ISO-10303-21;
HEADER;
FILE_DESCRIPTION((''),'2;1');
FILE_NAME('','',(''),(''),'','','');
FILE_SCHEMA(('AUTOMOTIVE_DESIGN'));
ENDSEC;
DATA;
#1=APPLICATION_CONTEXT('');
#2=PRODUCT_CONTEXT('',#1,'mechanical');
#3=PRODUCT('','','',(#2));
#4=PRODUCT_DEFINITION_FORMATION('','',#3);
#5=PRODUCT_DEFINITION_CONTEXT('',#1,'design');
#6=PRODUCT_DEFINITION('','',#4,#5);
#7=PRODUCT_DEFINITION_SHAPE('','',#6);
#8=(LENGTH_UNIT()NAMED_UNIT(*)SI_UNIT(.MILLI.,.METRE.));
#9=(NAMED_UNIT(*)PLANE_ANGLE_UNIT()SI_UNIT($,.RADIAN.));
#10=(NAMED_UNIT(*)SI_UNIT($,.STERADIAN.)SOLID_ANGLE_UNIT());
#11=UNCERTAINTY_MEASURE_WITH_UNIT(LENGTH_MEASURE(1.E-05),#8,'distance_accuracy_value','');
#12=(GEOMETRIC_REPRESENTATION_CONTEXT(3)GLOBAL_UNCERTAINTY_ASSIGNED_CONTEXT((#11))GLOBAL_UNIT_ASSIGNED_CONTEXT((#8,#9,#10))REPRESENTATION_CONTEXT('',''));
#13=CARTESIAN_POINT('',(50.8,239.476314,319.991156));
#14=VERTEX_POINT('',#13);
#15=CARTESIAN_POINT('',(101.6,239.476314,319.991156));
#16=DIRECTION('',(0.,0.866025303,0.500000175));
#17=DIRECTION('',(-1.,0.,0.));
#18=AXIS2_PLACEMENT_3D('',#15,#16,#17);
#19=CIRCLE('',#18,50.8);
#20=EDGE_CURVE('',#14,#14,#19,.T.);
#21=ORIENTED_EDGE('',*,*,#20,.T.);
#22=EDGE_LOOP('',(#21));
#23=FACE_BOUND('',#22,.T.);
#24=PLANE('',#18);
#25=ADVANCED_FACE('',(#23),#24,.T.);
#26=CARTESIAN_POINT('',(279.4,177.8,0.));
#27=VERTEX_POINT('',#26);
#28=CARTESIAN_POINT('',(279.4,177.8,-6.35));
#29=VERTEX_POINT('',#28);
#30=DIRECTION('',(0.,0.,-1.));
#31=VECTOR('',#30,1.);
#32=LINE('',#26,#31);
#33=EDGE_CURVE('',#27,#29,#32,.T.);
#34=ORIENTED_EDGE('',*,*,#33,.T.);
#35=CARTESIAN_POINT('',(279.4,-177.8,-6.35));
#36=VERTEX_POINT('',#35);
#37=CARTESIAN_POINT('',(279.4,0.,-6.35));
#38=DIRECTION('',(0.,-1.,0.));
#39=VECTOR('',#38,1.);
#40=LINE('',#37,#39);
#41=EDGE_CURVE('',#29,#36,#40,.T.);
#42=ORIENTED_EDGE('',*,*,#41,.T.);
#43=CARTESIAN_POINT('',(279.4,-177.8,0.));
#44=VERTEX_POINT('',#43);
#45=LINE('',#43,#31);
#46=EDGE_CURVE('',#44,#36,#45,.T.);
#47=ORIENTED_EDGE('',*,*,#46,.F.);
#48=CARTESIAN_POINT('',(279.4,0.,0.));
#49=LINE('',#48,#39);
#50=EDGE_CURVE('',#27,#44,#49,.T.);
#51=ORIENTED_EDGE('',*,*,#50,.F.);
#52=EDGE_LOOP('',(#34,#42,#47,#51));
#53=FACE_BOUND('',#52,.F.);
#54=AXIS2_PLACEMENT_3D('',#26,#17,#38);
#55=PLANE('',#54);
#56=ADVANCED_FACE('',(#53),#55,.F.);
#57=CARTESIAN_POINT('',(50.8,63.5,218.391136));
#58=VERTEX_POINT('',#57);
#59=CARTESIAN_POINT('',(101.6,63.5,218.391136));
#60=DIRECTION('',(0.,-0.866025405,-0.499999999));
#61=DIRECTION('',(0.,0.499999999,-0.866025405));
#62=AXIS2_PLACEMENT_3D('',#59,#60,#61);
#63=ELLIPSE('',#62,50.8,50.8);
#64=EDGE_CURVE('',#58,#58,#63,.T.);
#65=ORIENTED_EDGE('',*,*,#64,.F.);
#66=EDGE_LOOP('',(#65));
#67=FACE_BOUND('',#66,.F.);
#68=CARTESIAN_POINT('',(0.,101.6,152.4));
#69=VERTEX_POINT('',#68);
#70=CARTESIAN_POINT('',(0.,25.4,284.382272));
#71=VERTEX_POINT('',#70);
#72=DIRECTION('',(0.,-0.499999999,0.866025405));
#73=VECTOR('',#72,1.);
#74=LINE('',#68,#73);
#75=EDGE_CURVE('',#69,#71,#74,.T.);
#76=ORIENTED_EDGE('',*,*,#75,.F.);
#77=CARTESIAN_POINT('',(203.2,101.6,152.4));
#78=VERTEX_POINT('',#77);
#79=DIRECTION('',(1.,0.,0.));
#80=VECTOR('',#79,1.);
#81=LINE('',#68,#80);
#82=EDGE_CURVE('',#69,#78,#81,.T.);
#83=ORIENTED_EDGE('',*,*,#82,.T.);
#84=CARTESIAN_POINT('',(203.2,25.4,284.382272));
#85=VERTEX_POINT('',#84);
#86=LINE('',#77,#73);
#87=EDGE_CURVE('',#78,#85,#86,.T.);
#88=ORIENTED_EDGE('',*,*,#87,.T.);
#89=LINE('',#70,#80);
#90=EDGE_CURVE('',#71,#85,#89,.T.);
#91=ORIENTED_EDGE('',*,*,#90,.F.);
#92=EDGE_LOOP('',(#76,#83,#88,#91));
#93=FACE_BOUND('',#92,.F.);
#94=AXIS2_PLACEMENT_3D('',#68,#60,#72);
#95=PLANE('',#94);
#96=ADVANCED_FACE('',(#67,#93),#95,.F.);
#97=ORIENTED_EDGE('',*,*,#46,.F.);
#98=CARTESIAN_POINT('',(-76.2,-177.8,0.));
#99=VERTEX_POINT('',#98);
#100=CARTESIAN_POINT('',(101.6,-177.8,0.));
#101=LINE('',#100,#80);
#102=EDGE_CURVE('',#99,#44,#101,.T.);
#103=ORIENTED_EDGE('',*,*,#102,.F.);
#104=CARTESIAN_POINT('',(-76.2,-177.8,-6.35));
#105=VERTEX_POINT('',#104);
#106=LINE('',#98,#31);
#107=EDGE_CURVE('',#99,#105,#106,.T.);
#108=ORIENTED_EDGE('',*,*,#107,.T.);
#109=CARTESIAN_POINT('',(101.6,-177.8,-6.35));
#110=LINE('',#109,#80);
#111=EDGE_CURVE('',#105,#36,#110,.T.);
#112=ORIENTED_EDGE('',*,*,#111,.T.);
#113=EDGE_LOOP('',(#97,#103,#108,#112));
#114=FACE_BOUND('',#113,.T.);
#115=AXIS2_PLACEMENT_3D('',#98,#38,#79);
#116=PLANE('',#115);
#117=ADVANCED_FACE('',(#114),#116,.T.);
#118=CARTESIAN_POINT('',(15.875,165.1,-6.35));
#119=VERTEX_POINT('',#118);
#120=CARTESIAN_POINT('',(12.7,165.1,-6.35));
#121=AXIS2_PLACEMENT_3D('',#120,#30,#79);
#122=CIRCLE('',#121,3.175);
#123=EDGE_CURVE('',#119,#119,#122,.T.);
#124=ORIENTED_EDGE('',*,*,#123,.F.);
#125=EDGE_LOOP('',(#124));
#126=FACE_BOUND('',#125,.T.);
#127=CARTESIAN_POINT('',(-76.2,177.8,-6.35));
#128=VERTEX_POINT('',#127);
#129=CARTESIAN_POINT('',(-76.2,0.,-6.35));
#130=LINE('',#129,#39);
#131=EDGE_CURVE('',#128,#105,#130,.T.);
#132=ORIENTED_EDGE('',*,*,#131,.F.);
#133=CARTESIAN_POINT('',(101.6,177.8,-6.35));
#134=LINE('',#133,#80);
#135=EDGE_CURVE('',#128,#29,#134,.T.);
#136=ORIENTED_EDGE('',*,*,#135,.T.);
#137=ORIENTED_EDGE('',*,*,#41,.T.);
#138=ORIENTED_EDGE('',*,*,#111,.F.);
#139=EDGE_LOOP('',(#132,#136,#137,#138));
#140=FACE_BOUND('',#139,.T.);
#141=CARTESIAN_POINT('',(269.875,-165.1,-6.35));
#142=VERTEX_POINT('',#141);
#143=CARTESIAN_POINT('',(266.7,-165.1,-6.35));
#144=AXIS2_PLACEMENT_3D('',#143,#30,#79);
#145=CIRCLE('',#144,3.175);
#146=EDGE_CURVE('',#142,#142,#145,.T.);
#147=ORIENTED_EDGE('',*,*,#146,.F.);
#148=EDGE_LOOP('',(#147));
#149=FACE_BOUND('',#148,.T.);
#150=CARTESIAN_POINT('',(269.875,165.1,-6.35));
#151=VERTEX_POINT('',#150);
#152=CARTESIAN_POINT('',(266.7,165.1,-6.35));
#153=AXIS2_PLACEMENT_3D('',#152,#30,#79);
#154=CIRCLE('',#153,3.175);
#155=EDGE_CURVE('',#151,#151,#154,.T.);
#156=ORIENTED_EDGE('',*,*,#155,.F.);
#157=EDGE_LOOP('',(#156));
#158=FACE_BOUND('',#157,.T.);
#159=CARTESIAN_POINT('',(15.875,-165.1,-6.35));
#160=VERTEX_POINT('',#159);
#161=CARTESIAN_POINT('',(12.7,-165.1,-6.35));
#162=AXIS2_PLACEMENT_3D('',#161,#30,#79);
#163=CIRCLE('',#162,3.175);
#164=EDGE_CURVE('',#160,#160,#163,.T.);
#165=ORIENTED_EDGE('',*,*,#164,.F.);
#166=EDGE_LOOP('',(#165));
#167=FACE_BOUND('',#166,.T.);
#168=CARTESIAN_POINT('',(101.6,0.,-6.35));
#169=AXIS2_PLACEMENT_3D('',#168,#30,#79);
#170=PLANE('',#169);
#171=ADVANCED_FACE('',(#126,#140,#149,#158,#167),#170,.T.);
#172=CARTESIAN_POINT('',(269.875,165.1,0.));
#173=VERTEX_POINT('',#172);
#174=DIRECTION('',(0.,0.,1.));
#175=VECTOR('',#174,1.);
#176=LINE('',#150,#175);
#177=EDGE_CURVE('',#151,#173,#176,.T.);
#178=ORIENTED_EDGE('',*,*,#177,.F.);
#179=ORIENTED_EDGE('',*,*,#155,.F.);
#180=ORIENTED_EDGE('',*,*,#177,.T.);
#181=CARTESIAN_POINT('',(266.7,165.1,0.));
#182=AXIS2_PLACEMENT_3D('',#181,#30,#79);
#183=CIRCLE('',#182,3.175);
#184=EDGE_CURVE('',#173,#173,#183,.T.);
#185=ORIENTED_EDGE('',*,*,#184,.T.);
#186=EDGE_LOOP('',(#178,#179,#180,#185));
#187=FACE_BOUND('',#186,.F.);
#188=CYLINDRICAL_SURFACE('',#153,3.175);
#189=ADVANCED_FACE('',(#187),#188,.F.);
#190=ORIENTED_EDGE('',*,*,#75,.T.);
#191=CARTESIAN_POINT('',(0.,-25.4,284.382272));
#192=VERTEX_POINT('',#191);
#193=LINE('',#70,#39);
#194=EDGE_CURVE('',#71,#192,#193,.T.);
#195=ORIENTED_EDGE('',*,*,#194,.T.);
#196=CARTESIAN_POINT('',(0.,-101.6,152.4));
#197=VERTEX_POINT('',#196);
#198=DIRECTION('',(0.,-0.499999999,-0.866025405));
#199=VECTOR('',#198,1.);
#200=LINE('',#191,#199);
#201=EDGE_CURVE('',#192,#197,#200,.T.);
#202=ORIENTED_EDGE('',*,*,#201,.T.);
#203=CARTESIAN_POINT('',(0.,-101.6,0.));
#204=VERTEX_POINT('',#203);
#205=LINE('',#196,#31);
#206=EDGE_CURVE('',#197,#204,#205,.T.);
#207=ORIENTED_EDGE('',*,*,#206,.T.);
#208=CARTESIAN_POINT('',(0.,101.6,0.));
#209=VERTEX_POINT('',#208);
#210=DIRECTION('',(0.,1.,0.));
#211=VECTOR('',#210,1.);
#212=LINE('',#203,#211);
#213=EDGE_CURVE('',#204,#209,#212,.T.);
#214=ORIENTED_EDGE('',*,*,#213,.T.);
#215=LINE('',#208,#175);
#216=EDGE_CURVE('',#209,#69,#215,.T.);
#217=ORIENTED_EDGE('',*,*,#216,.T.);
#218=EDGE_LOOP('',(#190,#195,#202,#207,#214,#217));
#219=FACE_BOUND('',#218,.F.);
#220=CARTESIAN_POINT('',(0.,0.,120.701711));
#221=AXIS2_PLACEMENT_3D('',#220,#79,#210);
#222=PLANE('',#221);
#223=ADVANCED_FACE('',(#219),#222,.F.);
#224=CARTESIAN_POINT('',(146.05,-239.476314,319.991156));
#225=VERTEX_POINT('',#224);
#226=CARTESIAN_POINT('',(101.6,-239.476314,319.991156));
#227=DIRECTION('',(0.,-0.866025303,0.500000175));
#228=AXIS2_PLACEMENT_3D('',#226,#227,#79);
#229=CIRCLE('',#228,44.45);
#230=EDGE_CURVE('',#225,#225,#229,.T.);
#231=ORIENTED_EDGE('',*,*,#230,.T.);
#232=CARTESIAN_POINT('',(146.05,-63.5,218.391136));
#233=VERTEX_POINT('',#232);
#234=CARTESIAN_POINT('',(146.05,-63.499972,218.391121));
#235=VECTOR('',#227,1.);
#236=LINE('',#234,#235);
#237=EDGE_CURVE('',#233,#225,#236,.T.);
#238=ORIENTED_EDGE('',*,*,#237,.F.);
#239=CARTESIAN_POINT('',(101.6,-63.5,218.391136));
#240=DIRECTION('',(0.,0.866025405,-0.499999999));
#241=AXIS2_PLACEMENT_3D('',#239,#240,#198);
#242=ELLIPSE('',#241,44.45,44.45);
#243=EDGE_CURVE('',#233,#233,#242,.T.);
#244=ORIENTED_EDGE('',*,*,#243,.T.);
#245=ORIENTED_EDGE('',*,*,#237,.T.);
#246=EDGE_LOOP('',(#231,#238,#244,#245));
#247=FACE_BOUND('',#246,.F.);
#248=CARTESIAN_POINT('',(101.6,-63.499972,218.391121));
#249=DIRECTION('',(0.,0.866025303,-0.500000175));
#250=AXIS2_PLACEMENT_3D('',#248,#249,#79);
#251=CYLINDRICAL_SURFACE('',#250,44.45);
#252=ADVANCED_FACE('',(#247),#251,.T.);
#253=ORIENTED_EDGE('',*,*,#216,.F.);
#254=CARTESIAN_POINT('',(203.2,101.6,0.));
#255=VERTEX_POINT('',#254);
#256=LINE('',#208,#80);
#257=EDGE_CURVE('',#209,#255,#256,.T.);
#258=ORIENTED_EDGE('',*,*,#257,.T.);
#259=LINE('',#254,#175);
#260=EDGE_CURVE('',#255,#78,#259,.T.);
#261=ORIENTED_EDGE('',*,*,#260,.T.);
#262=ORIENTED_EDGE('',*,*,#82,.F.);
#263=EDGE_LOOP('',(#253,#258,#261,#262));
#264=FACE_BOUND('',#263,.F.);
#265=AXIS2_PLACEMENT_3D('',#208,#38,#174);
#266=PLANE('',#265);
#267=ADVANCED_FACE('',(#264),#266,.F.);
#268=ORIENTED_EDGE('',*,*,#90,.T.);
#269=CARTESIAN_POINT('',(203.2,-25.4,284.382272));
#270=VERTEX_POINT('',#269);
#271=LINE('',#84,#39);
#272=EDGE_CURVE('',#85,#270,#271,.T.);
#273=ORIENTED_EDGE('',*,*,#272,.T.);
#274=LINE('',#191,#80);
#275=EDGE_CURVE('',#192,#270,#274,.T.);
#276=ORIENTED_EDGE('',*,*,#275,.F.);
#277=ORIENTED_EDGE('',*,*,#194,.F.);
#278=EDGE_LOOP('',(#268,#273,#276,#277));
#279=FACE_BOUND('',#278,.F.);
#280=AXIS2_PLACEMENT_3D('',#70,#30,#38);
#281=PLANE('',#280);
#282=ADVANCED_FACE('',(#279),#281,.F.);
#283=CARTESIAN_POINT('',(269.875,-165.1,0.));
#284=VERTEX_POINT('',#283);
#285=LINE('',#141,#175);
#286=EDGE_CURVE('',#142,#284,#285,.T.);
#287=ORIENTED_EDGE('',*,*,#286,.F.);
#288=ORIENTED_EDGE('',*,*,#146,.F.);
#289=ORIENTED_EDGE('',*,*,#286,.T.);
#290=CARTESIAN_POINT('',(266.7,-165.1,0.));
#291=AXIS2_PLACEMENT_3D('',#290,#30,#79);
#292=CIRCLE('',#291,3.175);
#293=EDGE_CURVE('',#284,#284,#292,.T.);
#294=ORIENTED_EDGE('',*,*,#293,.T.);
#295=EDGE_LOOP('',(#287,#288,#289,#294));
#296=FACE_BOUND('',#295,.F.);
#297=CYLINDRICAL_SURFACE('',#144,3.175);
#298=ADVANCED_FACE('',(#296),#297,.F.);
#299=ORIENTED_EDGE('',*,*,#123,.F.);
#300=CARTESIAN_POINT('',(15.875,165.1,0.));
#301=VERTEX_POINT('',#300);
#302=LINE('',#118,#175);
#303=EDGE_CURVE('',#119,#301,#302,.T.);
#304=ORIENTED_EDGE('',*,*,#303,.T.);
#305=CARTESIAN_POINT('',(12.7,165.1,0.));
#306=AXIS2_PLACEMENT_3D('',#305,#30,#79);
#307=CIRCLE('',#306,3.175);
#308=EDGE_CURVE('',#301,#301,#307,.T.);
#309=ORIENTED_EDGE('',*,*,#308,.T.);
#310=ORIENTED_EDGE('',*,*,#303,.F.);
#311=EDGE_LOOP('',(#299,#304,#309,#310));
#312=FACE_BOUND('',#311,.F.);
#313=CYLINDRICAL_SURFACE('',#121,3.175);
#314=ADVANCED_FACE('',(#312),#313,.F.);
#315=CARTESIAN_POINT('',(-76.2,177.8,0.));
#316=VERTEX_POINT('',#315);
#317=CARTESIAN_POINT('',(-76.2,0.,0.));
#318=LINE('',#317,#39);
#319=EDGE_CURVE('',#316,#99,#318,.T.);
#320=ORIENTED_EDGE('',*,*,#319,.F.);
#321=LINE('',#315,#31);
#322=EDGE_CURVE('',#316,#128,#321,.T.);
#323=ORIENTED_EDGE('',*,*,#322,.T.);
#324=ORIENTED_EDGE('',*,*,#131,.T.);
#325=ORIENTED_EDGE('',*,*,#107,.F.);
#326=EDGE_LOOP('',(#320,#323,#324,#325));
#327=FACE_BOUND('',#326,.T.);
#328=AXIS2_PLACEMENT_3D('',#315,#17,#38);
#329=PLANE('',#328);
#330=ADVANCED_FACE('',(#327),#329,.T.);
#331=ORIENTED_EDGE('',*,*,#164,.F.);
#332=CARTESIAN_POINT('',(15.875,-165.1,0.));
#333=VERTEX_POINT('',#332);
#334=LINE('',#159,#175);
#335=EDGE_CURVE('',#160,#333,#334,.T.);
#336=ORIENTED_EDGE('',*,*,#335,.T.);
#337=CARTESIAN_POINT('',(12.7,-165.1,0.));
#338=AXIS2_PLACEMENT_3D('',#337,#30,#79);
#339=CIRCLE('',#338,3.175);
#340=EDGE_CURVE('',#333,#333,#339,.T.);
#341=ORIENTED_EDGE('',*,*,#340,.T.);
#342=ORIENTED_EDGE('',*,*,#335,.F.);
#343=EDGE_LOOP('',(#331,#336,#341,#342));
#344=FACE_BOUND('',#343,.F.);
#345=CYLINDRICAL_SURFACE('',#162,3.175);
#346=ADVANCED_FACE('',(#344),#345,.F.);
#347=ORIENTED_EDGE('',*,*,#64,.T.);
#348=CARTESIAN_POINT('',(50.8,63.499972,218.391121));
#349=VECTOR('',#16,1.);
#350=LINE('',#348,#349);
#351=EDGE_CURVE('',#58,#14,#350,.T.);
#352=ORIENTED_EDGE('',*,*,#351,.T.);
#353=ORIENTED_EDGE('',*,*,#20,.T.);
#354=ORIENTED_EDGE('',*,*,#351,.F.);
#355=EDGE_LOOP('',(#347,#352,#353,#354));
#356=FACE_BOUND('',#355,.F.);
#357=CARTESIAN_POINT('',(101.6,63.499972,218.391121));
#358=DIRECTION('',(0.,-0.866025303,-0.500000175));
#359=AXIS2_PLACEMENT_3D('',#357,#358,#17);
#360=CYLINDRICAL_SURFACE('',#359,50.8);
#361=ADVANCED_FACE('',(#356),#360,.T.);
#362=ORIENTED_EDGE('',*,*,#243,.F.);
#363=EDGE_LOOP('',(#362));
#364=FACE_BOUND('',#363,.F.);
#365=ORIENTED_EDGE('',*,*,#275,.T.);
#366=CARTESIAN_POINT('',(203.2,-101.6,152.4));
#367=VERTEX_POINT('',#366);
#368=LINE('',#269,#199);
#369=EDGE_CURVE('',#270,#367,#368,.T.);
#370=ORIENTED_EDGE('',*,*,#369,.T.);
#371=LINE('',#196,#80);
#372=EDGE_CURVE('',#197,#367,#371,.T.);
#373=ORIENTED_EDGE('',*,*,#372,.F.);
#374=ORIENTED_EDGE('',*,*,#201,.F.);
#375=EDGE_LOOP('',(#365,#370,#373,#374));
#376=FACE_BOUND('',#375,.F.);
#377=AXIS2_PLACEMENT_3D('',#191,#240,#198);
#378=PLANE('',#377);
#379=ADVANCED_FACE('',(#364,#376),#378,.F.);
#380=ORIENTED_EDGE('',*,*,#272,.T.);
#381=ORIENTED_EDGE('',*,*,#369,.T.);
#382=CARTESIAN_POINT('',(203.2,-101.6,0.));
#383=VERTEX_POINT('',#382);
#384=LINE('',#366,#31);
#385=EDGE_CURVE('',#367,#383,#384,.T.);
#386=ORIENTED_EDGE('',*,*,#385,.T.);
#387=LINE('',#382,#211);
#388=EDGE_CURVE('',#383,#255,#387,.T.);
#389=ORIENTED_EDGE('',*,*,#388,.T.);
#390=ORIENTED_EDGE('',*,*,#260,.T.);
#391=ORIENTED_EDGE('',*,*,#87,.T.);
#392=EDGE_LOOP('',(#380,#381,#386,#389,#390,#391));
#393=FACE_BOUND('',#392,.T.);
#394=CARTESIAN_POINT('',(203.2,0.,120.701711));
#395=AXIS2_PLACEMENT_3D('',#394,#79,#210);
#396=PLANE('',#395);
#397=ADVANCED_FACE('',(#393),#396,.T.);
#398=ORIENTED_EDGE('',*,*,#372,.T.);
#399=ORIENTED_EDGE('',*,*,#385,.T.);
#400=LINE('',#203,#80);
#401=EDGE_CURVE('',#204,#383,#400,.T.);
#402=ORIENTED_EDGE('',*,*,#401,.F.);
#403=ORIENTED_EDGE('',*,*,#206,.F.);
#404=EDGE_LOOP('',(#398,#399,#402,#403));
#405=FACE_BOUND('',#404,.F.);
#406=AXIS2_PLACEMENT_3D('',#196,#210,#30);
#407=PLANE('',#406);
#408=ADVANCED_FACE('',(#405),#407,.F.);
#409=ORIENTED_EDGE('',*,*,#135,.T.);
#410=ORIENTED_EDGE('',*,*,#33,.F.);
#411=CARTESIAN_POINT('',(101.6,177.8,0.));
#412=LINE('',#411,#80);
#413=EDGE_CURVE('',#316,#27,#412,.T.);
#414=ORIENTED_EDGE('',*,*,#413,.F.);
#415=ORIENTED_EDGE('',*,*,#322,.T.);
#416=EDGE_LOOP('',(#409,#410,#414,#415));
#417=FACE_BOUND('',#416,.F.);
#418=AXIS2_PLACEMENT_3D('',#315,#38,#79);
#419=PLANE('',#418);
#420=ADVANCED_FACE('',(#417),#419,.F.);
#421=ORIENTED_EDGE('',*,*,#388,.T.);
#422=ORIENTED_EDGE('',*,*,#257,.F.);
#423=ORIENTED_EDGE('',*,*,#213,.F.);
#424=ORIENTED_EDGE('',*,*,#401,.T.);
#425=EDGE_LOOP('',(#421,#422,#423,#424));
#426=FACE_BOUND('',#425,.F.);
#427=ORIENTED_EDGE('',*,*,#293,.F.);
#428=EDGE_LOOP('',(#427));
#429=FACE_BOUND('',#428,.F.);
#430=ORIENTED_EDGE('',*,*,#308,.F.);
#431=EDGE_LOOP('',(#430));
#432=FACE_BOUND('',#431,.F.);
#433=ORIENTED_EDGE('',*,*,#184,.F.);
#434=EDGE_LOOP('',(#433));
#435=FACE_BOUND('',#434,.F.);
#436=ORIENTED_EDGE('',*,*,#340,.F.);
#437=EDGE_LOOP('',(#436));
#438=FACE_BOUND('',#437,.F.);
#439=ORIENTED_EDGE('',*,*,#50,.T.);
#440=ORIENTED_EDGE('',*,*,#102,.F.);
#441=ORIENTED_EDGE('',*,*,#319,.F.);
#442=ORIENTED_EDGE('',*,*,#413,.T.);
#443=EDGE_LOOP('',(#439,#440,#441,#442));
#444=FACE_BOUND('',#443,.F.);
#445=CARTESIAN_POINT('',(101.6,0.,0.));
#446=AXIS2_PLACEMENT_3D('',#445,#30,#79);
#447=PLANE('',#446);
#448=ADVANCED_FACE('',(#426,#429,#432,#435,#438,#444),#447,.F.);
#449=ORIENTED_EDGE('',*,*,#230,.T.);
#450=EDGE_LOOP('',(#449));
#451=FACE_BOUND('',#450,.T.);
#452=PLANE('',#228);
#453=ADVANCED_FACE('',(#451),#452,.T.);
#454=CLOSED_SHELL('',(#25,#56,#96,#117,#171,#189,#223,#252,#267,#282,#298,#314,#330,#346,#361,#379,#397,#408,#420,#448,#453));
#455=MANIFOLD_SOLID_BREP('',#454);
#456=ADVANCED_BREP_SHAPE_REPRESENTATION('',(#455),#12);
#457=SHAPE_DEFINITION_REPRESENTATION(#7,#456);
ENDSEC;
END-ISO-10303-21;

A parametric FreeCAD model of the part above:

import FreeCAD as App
import Part
import Sketcher

V = App.Vector
Q = App.Units.Quantity


def add_polygon(sketch, points):
    """Adds a closed chain of lines whose ends are joined by coincident constraints."""
    first, n = sketch.GeometryCount, len(points)
    for a, b in zip(points, points[1:] + points[:1]):
        sketch.addGeometry(Part.LineSegment(App.Vector(*a, 0), App.Vector(*b, 0)), False)
    for i in range(n):
        sketch.addConstraint(Sketcher.Constraint("Coincident", first + i, 2, first + (i + 1) % n, 1))

doc = App.newDocument("Part")
body = doc.addObject("PartDesign::Body", "Body")

sketch1 = body.newObject("Sketcher::SketchObject", "Sketch")
sketch1.AttachmentSupport = (doc.getObject("YZ_Plane"), [""])
sketch1.MapMode = "FlatFace"
add_polygon(sketch1, [(-102, 152), (-102, 0), (102, 0), (102, 152), (25, 284), (-25, 284)])
sketch1.addConstraint([
    Sketcher.Constraint("Vertical", 0),
    Sketcher.Constraint("Horizontal", 1),
    Sketcher.Constraint("Vertical", 2),
    Sketcher.Constraint("Horizontal", 4),
    Sketcher.Constraint("Symmetric", 0, 2, 1, 2, -1, 1),
    Sketcher.Constraint("Horizontal", 2, 2, 5, 2),
    Sketcher.Constraint("Equal", 3, 5),
    Sketcher.Constraint("DistanceX", 1, 1, 1, 2, Q("8 in")),
    Sketcher.Constraint("DistanceX", 4, 2, 4, 1, Q("2 in")),
    Sketcher.Constraint("DistanceY", 0, 2, 0, 1, Q("6 in")),
    Sketcher.Constraint("Distance", 3, Q("6 in")),
])
pad1 = body.newObject("PartDesign::Pad", "Pad")
pad1.Profile = sketch1
pad1.Length = Q("8 in")

sketch2 = body.newObject("Sketcher::SketchObject", "Sketch001")
sketch2.Placement = App.Placement(V(0, 142.191136, 82.094091), App.Rotation(V(-1, 0, 0), V(0, -0.500000175, 0.866025303), V(0, 0.866025303, 0.500000175), "ZXY"))
sketch2.addGeometry(Part.Circle(V(-102, 157, 0), V(0, 0, 1), 51), False)
sketch2.addConstraint([
    Sketcher.Constraint("Diameter", 0, Q("4 in")),
    Sketcher.Constraint("DistanceX", 0, 3, -1, 1, Q("4 in")),
    Sketcher.Constraint("DistanceY", -1, 1, 0, 3, Q("157.382272 mm")),
])
pad2 = body.newObject("PartDesign::Pad", "Pad001")
pad2.Profile = sketch2
pad2.Length = Q("8 in")

sketch3 = body.newObject("Sketcher::SketchObject", "Sketch002")
sketch3.Placement = App.Placement(V(0, -142.191136, 82.094091), App.Rotation(V(1, 0, 0), V(0, 0.500000175, 0.866025303), V(0, -0.866025303, 0.500000175), "ZXY"))
sketch3.addGeometry(Part.Circle(V(102, 157, 0), V(0, 0, 1), 44), False)
sketch3.addConstraint([
    Sketcher.Constraint("Diameter", 0, Q("3.5 in")),
    Sketcher.Constraint("DistanceX", -1, 1, 0, 3, Q("4 in")),
    Sketcher.Constraint("DistanceY", -1, 1, 0, 3, Q("157.382272 mm")),
])
pad3 = body.newObject("PartDesign::Pad", "Pad002")
pad3.Profile = sketch3
pad3.Length = Q("8 in")

sketch4 = body.newObject("Sketcher::SketchObject", "Sketch003")
sketch4.AttachmentSupport = (doc.getObject("XY_Plane"), [""])
sketch4.MapMode = "FlatFace"
add_polygon(sketch4, [(-76, -178), (-76, 178), (279, 178), (279, -178)])
sketch4.addConstraint([
    Sketcher.Constraint("Vertical", 0),
    Sketcher.Constraint("Horizontal", 1),
    Sketcher.Constraint("Vertical", 2),
    Sketcher.Constraint("Horizontal", 3),
    Sketcher.Constraint("Equal", 3, 0),
    Sketcher.Constraint("DistanceX", 1, 1, 1, 2, Q("14 in")),
    Sketcher.Constraint("DistanceX", 0, 2, -1, 1, Q("3 in")),
    Sketcher.Constraint("DistanceY", -1, 1, 0, 2, Q("7 in")),
])
pad4 = body.newObject("PartDesign::Pad", "Pad003")
pad4.Profile = sketch4
pad4.Length = Q("0.25 in")
pad4.Reversed = True

sketch5 = body.newObject("Sketcher::SketchObject", "Sketch004")
sketch5.AttachmentSupport = (doc.getObject("XY_Plane"), [""])
sketch5.MapMode = "FlatFace"
sketch5.AttachmentOffset = App.Placement(V(0, 0, -0.25 * 25.4), App.Rotation())
sketch5.addGeometry([
    Part.Circle(V(266.7, -165.1, 0), V(0, 0, 1), 3.2),
    Part.Circle(V(266.7, 165.1, 0), V(0, 0, 1), 3.2),
    Part.Circle(V(12.7, 165.1, 0), V(0, 0, 1), 3.2),
    Part.Circle(V(12.7, -165.1, 0), V(0, 0, 1), 3.2),
], False)
sketch5.addConstraint([
    Sketcher.Constraint("Equal", 0, 1),
    Sketcher.Constraint("Equal", 1, 2),
    Sketcher.Constraint("Equal", 2, 3),
    Sketcher.Constraint("Symmetric", 0, 3, 1, 3, -1),
    Sketcher.Constraint("Symmetric", 2, 3, 3, 3, -1),
    Sketcher.Constraint("Horizontal", 1, 3, 2, 3),
    Sketcher.Constraint("Diameter", 0, Q("0.25 in")),
    Sketcher.Constraint("DistanceY", 0, 3, 1, 3, Q("13 in")),
    Sketcher.Constraint("DistanceX", 2, 3, 1, 3, Q("10 in")),
    Sketcher.Constraint("DistanceX", -1, 1, 0, 3, Q("10.5 in")),
])
pocket1 = body.newObject("PartDesign::Pocket", "Pocket")
pocket1.Profile = sketch5
pocket1.Type = "ThroughAll"
pocket1.Reversed = True

doc.recompute()
